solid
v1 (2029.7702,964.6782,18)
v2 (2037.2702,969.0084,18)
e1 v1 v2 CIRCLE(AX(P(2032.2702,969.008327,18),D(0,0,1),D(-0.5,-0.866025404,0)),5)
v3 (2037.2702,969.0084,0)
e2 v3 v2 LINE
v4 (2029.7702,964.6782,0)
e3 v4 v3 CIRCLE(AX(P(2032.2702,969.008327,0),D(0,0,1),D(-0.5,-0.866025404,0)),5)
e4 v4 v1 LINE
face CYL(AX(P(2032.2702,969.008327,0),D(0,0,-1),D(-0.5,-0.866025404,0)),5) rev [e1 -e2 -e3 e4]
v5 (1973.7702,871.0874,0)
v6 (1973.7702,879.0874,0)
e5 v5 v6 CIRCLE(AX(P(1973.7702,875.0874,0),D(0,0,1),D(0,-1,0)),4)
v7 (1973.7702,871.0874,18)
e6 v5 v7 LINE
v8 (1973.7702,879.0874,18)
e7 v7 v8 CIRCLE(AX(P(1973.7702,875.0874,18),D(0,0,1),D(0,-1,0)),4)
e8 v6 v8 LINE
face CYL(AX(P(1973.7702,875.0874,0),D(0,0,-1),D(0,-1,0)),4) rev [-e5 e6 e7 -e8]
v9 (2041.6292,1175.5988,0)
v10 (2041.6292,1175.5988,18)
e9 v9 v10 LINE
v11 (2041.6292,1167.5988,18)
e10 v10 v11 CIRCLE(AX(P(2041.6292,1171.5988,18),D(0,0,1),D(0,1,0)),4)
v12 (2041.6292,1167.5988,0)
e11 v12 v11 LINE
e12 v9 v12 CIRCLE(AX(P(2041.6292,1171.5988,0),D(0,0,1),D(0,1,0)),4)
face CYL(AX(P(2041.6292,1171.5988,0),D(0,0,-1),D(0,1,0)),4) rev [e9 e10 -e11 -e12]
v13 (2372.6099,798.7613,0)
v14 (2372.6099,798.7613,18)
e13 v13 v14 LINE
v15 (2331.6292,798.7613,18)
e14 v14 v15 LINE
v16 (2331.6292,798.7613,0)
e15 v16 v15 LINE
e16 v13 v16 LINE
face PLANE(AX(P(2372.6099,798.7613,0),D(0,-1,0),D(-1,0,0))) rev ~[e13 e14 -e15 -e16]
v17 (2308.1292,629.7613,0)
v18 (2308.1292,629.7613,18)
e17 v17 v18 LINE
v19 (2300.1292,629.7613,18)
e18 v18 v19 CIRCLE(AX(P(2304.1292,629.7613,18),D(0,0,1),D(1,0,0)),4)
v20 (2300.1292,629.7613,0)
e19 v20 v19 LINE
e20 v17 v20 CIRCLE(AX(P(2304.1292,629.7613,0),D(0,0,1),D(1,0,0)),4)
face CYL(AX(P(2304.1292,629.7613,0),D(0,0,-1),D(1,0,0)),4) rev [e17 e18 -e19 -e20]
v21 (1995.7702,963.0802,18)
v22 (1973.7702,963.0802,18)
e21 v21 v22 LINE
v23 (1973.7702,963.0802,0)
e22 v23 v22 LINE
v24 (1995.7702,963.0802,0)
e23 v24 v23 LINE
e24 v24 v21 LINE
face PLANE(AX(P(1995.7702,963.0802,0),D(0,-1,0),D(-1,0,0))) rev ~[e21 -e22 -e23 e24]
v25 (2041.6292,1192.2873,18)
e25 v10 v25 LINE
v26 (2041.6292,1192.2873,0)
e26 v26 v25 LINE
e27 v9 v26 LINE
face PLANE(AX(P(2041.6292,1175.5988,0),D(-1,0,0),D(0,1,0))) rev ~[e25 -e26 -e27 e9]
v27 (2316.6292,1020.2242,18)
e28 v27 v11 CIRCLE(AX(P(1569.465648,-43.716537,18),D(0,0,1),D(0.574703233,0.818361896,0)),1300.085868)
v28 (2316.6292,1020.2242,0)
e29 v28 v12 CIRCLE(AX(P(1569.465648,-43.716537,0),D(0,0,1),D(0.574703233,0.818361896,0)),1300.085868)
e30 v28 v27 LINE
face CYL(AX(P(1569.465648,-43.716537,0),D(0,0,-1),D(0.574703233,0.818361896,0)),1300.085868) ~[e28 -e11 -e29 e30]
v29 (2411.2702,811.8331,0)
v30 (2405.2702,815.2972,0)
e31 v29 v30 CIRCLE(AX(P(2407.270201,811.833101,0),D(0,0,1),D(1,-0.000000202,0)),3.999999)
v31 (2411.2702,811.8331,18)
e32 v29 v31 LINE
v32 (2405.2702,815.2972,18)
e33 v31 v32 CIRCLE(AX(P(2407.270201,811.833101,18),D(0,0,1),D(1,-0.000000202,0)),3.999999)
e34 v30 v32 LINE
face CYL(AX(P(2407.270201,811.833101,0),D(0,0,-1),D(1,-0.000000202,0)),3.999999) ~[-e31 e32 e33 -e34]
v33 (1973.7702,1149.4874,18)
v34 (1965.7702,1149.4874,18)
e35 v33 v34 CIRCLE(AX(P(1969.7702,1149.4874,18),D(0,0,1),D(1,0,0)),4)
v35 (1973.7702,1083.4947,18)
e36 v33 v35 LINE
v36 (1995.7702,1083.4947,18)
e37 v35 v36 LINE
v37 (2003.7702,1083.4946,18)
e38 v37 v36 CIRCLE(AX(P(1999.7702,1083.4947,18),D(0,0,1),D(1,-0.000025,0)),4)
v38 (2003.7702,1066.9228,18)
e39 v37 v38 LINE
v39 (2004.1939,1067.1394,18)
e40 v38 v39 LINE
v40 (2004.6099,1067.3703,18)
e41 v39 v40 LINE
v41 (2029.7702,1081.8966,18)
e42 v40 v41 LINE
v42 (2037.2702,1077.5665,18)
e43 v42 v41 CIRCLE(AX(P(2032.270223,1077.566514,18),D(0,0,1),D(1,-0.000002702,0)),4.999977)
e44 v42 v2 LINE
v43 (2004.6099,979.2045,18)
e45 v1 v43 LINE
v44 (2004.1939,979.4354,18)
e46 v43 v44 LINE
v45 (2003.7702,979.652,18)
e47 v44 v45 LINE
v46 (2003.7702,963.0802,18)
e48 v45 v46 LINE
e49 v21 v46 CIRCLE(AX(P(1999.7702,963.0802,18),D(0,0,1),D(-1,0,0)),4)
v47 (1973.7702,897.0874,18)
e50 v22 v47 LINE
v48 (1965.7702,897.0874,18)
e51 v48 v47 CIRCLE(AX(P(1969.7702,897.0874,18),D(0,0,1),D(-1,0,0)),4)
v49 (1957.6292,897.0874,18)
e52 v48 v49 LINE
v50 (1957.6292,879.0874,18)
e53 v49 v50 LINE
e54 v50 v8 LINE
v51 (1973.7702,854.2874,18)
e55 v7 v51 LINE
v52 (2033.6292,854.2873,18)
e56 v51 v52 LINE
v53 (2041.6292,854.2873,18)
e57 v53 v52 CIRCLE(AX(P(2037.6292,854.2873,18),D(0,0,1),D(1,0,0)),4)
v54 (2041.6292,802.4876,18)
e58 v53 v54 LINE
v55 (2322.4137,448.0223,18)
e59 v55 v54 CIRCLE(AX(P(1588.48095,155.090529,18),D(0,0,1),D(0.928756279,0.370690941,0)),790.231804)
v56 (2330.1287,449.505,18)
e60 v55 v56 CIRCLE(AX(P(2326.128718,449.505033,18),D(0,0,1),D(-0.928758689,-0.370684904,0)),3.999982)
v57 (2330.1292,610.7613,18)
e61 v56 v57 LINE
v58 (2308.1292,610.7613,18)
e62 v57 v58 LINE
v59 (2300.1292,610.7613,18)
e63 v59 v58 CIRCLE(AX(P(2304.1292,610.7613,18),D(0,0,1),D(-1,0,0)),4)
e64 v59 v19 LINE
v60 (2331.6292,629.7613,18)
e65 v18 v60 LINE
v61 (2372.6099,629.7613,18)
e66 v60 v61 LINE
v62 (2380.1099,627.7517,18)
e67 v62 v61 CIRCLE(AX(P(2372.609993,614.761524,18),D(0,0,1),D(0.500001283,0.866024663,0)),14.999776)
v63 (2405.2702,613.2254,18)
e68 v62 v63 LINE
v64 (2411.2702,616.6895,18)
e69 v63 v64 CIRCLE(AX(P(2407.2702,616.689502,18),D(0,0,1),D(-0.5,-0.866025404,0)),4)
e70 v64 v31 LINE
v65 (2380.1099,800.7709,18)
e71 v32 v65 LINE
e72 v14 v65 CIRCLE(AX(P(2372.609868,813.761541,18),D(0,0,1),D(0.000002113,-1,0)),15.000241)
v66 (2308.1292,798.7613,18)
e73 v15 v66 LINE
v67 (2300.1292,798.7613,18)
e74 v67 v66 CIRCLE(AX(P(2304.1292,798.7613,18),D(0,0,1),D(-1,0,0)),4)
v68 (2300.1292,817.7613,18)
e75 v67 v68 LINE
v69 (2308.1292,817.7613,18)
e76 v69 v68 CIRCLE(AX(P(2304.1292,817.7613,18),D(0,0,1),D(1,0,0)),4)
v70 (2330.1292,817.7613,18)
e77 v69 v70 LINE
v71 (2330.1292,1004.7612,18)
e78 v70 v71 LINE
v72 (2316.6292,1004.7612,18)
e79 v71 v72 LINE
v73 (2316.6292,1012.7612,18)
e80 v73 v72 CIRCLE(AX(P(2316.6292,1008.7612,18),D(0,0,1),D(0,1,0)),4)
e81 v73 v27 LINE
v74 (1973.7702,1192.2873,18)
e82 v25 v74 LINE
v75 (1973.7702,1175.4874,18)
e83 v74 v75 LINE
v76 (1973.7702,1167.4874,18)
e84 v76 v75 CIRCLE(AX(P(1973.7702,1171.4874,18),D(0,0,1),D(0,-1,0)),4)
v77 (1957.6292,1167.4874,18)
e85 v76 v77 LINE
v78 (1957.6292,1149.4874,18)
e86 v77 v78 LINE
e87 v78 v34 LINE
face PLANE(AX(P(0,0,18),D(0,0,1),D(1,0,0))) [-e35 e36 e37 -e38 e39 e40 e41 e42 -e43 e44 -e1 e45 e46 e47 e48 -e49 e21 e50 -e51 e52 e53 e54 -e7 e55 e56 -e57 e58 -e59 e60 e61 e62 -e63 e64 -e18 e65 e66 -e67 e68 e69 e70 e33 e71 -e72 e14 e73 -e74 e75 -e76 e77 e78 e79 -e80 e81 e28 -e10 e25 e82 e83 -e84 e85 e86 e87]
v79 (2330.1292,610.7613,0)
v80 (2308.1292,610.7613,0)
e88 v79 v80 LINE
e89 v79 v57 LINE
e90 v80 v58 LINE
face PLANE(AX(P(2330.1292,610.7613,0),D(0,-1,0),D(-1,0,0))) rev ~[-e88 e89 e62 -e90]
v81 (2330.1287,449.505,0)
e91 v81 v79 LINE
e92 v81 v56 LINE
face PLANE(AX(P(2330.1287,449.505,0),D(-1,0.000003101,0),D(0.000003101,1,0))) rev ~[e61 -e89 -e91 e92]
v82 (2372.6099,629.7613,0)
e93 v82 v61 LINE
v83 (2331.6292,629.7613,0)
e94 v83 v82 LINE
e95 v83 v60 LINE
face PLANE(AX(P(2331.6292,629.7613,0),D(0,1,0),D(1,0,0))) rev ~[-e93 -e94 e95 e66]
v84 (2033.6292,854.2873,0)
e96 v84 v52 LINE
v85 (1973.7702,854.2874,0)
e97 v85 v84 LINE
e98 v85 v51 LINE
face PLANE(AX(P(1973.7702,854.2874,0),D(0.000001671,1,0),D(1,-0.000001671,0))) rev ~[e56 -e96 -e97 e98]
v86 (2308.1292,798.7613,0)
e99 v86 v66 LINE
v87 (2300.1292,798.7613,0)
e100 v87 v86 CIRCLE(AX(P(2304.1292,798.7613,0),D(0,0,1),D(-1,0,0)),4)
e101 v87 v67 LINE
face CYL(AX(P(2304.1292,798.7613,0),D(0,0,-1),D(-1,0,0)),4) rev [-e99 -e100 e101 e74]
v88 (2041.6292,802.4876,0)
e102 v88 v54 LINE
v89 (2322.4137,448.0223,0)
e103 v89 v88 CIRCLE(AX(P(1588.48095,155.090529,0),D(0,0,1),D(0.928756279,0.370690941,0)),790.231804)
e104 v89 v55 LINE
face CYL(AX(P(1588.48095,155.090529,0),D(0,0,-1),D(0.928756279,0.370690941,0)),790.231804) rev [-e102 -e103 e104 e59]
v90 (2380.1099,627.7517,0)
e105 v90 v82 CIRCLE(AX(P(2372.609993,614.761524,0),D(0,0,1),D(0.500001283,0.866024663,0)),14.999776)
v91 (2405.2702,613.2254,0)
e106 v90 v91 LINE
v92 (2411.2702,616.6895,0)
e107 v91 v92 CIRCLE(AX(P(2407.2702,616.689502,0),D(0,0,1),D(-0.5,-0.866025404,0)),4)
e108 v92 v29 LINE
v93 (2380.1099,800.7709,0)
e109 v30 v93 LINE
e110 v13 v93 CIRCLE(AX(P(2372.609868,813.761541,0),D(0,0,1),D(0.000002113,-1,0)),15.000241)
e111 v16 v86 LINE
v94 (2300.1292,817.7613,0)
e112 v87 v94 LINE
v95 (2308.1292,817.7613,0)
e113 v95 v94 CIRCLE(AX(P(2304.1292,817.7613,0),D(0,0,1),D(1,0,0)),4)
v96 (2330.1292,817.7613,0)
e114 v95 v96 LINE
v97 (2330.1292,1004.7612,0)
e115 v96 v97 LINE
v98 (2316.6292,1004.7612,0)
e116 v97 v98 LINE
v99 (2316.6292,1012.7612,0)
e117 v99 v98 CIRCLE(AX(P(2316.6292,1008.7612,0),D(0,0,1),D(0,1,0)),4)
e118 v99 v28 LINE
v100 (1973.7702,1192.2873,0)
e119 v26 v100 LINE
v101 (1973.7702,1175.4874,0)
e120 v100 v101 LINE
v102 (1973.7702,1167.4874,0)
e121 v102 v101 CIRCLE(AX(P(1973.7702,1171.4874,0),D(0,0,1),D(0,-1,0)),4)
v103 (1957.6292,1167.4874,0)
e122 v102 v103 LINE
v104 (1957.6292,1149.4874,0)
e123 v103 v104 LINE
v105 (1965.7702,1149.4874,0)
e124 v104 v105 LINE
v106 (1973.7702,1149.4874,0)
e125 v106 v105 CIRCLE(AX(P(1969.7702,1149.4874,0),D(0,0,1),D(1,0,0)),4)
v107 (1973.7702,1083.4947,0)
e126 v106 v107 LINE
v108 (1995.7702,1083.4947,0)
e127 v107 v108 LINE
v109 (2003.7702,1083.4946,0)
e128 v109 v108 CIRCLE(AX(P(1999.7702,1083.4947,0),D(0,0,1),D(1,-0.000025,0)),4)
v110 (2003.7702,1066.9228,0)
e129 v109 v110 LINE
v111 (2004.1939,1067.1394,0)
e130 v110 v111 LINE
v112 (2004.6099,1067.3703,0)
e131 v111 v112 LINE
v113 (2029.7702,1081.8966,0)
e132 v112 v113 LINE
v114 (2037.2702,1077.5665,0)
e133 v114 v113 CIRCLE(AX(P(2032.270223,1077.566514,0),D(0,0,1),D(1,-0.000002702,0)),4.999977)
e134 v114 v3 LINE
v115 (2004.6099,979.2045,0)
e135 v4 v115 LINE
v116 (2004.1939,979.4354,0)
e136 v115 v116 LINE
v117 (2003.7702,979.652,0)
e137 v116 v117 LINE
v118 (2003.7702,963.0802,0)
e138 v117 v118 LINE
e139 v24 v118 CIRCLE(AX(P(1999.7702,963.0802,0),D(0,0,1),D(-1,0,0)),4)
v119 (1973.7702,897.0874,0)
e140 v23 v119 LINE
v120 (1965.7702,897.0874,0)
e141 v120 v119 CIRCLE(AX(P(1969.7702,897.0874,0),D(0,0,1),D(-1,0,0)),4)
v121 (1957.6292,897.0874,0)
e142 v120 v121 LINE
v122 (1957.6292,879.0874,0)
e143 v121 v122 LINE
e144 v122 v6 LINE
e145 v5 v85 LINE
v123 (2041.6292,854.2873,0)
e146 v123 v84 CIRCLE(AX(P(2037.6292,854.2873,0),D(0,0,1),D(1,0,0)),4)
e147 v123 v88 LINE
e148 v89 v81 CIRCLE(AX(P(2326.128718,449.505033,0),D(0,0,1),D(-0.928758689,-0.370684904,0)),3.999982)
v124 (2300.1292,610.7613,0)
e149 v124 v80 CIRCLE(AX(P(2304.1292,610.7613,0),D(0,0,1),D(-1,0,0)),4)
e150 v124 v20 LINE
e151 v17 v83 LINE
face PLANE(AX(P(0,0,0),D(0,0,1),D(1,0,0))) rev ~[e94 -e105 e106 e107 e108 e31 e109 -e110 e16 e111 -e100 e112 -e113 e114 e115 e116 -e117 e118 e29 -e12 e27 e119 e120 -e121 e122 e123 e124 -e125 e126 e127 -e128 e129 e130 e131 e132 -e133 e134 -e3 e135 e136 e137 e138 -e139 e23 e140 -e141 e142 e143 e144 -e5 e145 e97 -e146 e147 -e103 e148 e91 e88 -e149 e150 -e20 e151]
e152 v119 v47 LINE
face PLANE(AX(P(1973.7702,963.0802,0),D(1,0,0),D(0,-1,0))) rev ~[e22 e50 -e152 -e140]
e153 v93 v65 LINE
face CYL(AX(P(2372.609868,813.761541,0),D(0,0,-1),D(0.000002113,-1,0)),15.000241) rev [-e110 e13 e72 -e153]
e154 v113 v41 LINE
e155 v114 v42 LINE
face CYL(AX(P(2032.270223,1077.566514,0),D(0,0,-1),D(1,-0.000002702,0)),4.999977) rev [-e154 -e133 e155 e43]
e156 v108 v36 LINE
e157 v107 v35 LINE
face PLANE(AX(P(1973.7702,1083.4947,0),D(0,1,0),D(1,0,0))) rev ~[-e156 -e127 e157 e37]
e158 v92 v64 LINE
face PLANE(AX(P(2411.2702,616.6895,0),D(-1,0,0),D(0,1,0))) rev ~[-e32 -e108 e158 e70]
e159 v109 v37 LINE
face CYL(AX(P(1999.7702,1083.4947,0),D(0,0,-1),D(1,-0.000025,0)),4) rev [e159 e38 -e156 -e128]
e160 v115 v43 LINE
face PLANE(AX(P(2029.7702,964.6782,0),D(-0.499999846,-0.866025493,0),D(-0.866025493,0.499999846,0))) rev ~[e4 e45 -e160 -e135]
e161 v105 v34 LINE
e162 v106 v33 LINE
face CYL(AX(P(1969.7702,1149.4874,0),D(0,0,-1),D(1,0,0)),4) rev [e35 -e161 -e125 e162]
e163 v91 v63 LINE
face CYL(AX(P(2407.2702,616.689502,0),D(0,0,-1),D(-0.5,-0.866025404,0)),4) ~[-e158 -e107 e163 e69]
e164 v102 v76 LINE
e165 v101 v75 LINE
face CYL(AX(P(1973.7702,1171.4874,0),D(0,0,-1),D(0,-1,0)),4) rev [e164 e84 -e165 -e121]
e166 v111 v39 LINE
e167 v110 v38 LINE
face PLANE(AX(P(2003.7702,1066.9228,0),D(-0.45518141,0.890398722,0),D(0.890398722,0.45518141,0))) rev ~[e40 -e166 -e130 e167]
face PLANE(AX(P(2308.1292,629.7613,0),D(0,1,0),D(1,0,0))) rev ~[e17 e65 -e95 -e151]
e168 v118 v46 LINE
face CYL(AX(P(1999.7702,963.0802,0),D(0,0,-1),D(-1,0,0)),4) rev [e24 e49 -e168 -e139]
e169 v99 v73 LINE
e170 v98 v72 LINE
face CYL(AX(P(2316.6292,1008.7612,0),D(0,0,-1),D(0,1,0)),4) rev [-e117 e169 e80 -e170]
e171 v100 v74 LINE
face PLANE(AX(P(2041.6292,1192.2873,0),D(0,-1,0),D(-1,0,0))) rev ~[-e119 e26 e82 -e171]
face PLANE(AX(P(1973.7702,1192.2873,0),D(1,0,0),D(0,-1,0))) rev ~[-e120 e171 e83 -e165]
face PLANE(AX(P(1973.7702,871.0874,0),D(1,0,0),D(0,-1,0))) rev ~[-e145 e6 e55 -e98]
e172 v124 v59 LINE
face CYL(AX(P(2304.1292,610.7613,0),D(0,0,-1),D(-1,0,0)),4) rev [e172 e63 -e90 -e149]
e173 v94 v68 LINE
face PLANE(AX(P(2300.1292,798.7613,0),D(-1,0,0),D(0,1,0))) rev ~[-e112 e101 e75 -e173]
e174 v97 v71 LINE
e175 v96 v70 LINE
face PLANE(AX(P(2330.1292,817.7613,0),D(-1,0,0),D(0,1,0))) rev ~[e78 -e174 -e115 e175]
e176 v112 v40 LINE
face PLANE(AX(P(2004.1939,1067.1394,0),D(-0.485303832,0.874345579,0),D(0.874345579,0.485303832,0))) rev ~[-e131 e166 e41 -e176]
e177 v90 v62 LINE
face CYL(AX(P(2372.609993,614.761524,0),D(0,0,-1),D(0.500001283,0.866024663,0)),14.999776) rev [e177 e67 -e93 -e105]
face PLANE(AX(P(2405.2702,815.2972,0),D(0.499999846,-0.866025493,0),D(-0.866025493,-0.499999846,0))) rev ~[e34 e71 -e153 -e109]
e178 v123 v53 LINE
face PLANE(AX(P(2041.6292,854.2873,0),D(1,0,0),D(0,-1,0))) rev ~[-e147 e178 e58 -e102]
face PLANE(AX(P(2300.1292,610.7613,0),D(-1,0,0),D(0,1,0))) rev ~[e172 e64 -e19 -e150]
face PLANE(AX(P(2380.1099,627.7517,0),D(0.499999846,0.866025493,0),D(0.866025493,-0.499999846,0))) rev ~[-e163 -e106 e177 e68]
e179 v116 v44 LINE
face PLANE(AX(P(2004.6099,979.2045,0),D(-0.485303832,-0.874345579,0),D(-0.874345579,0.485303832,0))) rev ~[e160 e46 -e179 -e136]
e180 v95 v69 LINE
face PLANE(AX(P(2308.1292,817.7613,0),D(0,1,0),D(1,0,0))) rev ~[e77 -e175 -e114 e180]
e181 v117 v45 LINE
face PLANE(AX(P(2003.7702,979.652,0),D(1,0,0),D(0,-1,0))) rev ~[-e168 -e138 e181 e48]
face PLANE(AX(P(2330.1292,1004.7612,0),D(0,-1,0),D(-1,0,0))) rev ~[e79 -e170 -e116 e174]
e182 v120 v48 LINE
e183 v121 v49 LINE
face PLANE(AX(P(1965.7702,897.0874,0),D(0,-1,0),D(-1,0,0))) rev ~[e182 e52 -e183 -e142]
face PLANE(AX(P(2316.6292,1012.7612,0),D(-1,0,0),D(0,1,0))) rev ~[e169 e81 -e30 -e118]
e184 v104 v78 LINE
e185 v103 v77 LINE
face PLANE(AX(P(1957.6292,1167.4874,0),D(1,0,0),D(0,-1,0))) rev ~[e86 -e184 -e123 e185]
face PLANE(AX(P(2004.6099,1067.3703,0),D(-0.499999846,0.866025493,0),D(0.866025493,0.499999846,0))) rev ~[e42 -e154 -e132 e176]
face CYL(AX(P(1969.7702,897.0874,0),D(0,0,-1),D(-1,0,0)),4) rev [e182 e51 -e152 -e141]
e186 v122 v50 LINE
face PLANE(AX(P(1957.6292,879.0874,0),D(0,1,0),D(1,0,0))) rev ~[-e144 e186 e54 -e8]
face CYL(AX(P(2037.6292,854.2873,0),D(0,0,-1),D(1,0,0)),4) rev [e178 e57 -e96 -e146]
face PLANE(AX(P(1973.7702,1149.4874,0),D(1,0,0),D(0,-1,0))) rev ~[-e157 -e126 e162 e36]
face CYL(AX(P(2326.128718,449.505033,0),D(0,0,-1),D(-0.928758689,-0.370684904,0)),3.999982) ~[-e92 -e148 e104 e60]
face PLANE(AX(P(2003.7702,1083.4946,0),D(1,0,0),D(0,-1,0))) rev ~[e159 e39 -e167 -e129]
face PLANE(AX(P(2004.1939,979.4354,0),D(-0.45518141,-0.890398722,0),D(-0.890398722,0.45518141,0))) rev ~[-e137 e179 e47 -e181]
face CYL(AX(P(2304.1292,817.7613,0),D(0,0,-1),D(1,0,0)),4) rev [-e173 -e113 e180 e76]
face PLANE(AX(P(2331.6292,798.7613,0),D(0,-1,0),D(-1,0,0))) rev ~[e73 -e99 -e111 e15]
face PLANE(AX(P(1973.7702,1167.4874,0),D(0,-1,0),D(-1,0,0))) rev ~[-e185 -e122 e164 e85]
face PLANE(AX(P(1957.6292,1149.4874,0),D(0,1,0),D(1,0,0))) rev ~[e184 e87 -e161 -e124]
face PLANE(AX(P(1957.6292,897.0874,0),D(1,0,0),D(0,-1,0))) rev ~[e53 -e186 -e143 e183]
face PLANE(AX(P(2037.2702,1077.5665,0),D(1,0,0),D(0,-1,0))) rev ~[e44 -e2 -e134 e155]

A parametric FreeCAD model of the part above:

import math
import FreeCAD as App
import Part
import Sketcher

V = App.Vector
Q = App.Units.Quantity

doc = App.newDocument("Part")
body = doc.addObject("PartDesign::Body", "Body")

sketch1 = body.newObject("Sketcher::SketchObject", "Sketch")
sketch1.AttachmentSupport = (doc.getObject("XY_Plane"), [""])
sketch1.MapMode = "FlatFace"
sketch1.addGeometry(Part.ArcOfCircle(Part.Circle(V(1973.7702, 875.0874, 0), V(0, 0, 1), 4), math.radians(-90), math.radians(90)), False)
sketch1.addGeometry(Part.LineSegment(V(1973.7702, 871.0874, 0), V(1973.7702, 854.2874, 0)), False)
sketch1.addGeometry(Part.LineSegment(V(1973.7702, 854.2874, 0), V(2033.6292, 854.2873, 0)), False)
sketch1.addGeometry(Part.ArcOfCircle(Part.Circle(V(2037.6292, 854.2873, 0), V(0, 0, 1), 4), math.radians(0), math.radians(180)), False)
sketch1.addGeometry(Part.LineSegment(V(2041.6292, 854.2873, 0), V(2041.6292, 802.4876, 0)), False)
sketch1.addGeometry(Part.ArcOfCircle(Part.Circle(V(1588.4809, 155.0905, 0), V(0, 0, 1), 790.231861), math.radians(21.758236), math.radians(55.009742)), False)
sketch1.addGeometry(Part.ArcOfCircle(Part.Circle(V(2326.1287, 449.505, 0), V(0, 0, 1), 3.999953), math.radians(-158.242479), math.radians(0)), False)
sketch1.addGeometry(Part.LineSegment(V(2330.1287, 449.505, 0), V(2330.1292, 610.7613, 0)), False)
sketch1.addGeometry(Part.LineSegment(V(2330.1292, 610.7613, 0), V(2308.1292, 610.7613, 0)), False)
sketch1.addGeometry(Part.ArcOfCircle(Part.Circle(V(2304.1292, 610.7613, 0), V(0, 0, 1), 4), math.radians(180), math.radians(360)), False)
sketch1.addGeometry(Part.LineSegment(V(2300.1292, 610.7613, 0), V(2300.1292, 629.7613, 0)), False)
sketch1.addGeometry(Part.ArcOfCircle(Part.Circle(V(2304.1292, 629.7613, 0), V(0, 0, 1), 4), math.radians(0), math.radians(180)), False)
sketch1.addGeometry(Part.LineSegment(V(2308.1292, 629.7613, 0), V(2372.6099, 629.7613, 0)), False)
sketch1.addGeometry(Part.ArcOfCircle(Part.Circle(V(2372.6099, 614.7613, 0), V(0, 0, 1), 15.000016), math.radians(60.000036), math.radians(90)), False)
sketch1.addGeometry(Part.LineSegment(V(2380.1099, 627.7517, 0), V(2405.2702, 613.2254, 0)), False)
sketch1.addGeometry(Part.ArcOfCircle(Part.Circle(V(2407.2702, 616.6895, 0), V(0, 0, 1), 3.999999), math.radians(-120.000012), math.radians(0)), False)
sketch1.addGeometry(Part.LineSegment(V(2411.2702, 616.6895, 0), V(2411.2702, 811.8331, 0)), False)
sketch1.addGeometry(Part.ArcOfCircle(Part.Circle(V(2407.2702, 811.8331, 0), V(0, 0, 1), 4), math.radians(0), math.radians(120.000012)), False)
sketch1.addGeometry(Part.LineSegment(V(2405.2702, 815.2972, 0), V(2380.1099, 800.7709, 0)), False)
sketch1.addGeometry(Part.ArcOfCircle(Part.Circle(V(2372.6099, 813.7613, 0), V(0, 0, 1), 15), math.radians(-90), math.radians(-60.000036)), False)
sketch1.addGeometry(Part.LineSegment(V(2372.6099, 798.7613, 0), V(2308.1292, 798.7613, 0)), False)
sketch1.addGeometry(Part.ArcOfCircle(Part.Circle(V(2304.1292, 798.7613, 0), V(0, 0, 1), 4), math.radians(180), math.radians(360)), False)
sketch1.addGeometry(Part.LineSegment(V(2300.1292, 798.7613, 0), V(2300.1292, 817.7613, 0)), False)
sketch1.addGeometry(Part.ArcOfCircle(Part.Circle(V(2304.1292, 817.7613, 0), V(0, 0, 1), 4), math.radians(0), math.radians(180)), False)
sketch1.addGeometry(Part.LineSegment(V(2308.1292, 817.7613, 0), V(2330.1292, 817.7613, 0)), False)
sketch1.addGeometry(Part.LineSegment(V(2330.1292, 817.7613, 0), V(2330.1292, 1004.7612, 0)), False)
sketch1.addGeometry(Part.LineSegment(V(2330.1292, 1004.7612, 0), V(2316.6292, 1004.7612, 0)), False)
sketch1.addGeometry(Part.ArcOfCircle(Part.Circle(V(2316.6292, 1008.7612, 0), V(0, 0, 1), 4), math.radians(90), math.radians(270)), False)
sketch1.addGeometry(Part.LineSegment(V(2316.6292, 1012.7612, 0), V(2316.6292, 1020.2242, 0)), False)
sketch1.addGeometry(Part.ArcOfCircle(Part.Circle(V(1569.465648, -43.716537, 0), V(0, 0, 1), 1300.085868), math.radians(54.921148), math.radians(68.704458)), False)
sketch1.addGeometry(Part.ArcOfCircle(Part.Circle(V(2041.6292, 1171.5988, 0), V(0, 0, 1), 4), math.radians(90), math.radians(270)), False)
sketch1.addGeometry(Part.LineSegment(V(2041.6292, 1175.5988, 0), V(2041.6292, 1192.2873, 0)), False)
sketch1.addGeometry(Part.LineSegment(V(2041.6292, 1192.2873, 0), V(1973.7702, 1192.2873, 0)), False)
sketch1.addGeometry(Part.LineSegment(V(1973.7702, 1192.2873, 0), V(1973.7702, 1175.4874, 0)), False)
sketch1.addGeometry(Part.ArcOfCircle(Part.Circle(V(1973.7702, 1171.4874, 0), V(0, 0, 1), 4), math.radians(-90), math.radians(90)), False)
sketch1.addGeometry(Part.LineSegment(V(1973.7702, 1167.4874, 0), V(1957.6292, 1167.4874, 0)), False)
sketch1.addGeometry(Part.LineSegment(V(1957.6292, 1167.4874, 0), V(1957.6292, 1149.4874, 0)), False)
sketch1.addGeometry(Part.LineSegment(V(1957.6292, 1149.4874, 0), V(1965.7702, 1149.4874, 0)), False)
sketch1.addGeometry(Part.ArcOfCircle(Part.Circle(V(1969.7702, 1149.4874, 0), V(0, 0, 1), 4), math.radians(0), math.radians(180)), False)
sketch1.addGeometry(Part.LineSegment(V(1973.7702, 1149.4874, 0), V(1973.7702, 1083.4947, 0)), False)
sketch1.addGeometry(Part.LineSegment(V(1973.7702, 1083.4947, 0), V(1995.7702, 1083.4947, 0)), False)
sketch1.addGeometry(Part.ArcOfCircle(Part.Circle(V(1999.7702, 1083.4947, 0), V(0, 0, 1), 4), math.radians(-0.001432), math.radians(180)), False)
sketch1.addGeometry(Part.LineSegment(V(2003.7702, 1083.4946, 0), V(2003.7702, 1066.9228, 0)), False)
sketch1.addGeometry(Part.LineSegment(V(2003.7702, 1066.9228, 0), V(2004.1939, 1067.1394, 0)), False)
sketch1.addGeometry(Part.LineSegment(V(2004.1939, 1067.1394, 0), V(2004.6099, 1067.3703, 0)), False)
sketch1.addGeometry(Part.LineSegment(V(2004.6099, 1067.3703, 0), V(2029.7702, 1081.8966, 0)), False)
sketch1.addGeometry(Part.ArcOfCircle(Part.Circle(V(2032.2702, 1077.5665, 0), V(0, 0, 1), 5), math.radians(0), math.radians(120.000155)), False)
sketch1.addGeometry(Part.LineSegment(V(2037.2702, 1077.5665, 0), V(2037.2702, 969.0084, 0)), False)
sketch1.addGeometry(Part.ArcOfCircle(Part.Circle(V(2032.2702, 969.0084, 0), V(0, 0, 1), 5.000063), math.radians(-119.999582), math.radians(0)), False)
sketch1.addGeometry(Part.LineSegment(V(2029.7702, 964.6782, 0), V(2004.6099, 979.2045, 0)), False)
sketch1.addGeometry(Part.LineSegment(V(2004.6099, 979.2045, 0), V(2004.1939, 979.4354, 0)), False)
sketch1.addGeometry(Part.LineSegment(V(2004.1939, 979.4354, 0), V(2003.7702, 979.652, 0)), False)
sketch1.addGeometry(Part.LineSegment(V(2003.7702, 979.652, 0), V(2003.7702, 963.0802, 0)), False)
sketch1.addGeometry(Part.ArcOfCircle(Part.Circle(V(1999.7702, 963.0802, 0), V(0, 0, 1), 4), math.radians(180), math.radians(360)), False)
sketch1.addGeometry(Part.LineSegment(V(1995.7702, 963.0802, 0), V(1973.7702, 963.0802, 0)), False)
sketch1.addGeometry(Part.LineSegment(V(1973.7702, 963.0802, 0), V(1973.7702, 897.0874, 0)), False)
sketch1.addGeometry(Part.ArcOfCircle(Part.Circle(V(1969.7702, 897.0874, 0), V(0, 0, 1), 4), math.radians(180), math.radians(360)), False)
sketch1.addGeometry(Part.LineSegment(V(1965.7702, 897.0874, 0), V(1957.6292, 897.0874, 0)), False)
sketch1.addGeometry(Part.LineSegment(V(1957.6292, 897.0874, 0), V(1957.6292, 879.0874, 0)), False)
sketch1.addGeometry(Part.LineSegment(V(1957.6292, 879.0874, 0), V(1973.7702, 879.0874, 0)), False)
sketch1.addConstraint(Sketcher.Constraint("Coincident", 0, 1, 1, 1))
sketch1.addConstraint(Sketcher.Constraint("Coincident", 1, 2, 2, 1))
sketch1.addConstraint(Sketcher.Constraint("Coincident", 2, 2, 3, 2))
sketch1.addConstraint(Sketcher.Constraint("Coincident", 3, 1, 4, 1))
sketch1.addConstraint(Sketcher.Constraint("Coincident", 4, 2, 5, 2))
sketch1.addConstraint(Sketcher.Constraint("Coincident", 5, 1, 6, 1))
sketch1.addConstraint(Sketcher.Constraint("Coincident", 6, 2, 7, 1))
sketch1.addConstraint(Sketcher.Constraint("Coincident", 7, 2, 8, 1))
sketch1.addConstraint(Sketcher.Constraint("Coincident", 8, 2, 9, 2))
sketch1.addConstraint(Sketcher.Constraint("Coincident", 9, 1, 10, 1))
sketch1.addConstraint(Sketcher.Constraint("Coincident", 10, 2, 11, 2))
sketch1.addConstraint(Sketcher.Constraint("Coincident", 11, 1, 12, 1))
sketch1.addConstraint(Sketcher.Constraint("Coincident", 12, 2, 13, 2))
sketch1.addConstraint(Sketcher.Constraint("Coincident", 13, 1, 14, 1))
sketch1.addConstraint(Sketcher.Constraint("Coincident", 14, 2, 15, 1))
sketch1.addConstraint(Sketcher.Constraint("Coincident", 15, 2, 16, 1))
sketch1.addConstraint(Sketcher.Constraint("Coincident", 16, 2, 17, 1))
sketch1.addConstraint(Sketcher.Constraint("Coincident", 17, 2, 18, 1))
sketch1.addConstraint(Sketcher.Constraint("Coincident", 18, 2, 19, 2))
sketch1.addConstraint(Sketcher.Constraint("Coincident", 19, 1, 20, 1))
sketch1.addConstraint(Sketcher.Constraint("Coincident", 20, 2, 21, 2))
sketch1.addConstraint(Sketcher.Constraint("Coincident", 21, 1, 22, 1))
sketch1.addConstraint(Sketcher.Constraint("Coincident", 22, 2, 23, 2))
sketch1.addConstraint(Sketcher.Constraint("Coincident", 23, 1, 24, 1))
sketch1.addConstraint(Sketcher.Constraint("Coincident", 24, 2, 25, 1))
sketch1.addConstraint(Sketcher.Constraint("Coincident", 25, 2, 26, 1))
sketch1.addConstraint(Sketcher.Constraint("Coincident", 26, 2, 27, 2))
sketch1.addConstraint(Sketcher.Constraint("Coincident", 27, 1, 28, 1))
sketch1.addConstraint(Sketcher.Constraint("Coincident", 28, 2, 29, 1))
sketch1.addConstraint(Sketcher.Constraint("Coincident", 29, 2, 30, 2))
sketch1.addConstraint(Sketcher.Constraint("Coincident", 30, 1, 31, 1))
sketch1.addConstraint(Sketcher.Constraint("Coincident", 31, 2, 32, 1))
sketch1.addConstraint(Sketcher.Constraint("Coincident", 32, 2, 33, 1))
sketch1.addConstraint(Sketcher.Constraint("Coincident", 33, 2, 34, 2))
sketch1.addConstraint(Sketcher.Constraint("Coincident", 34, 1, 35, 1))
sketch1.addConstraint(Sketcher.Constraint("Coincident", 35, 2, 36, 1))
sketch1.addConstraint(Sketcher.Constraint("Coincident", 36, 2, 37, 1))
sketch1.addConstraint(Sketcher.Constraint("Coincident", 37, 2, 38, 2))
sketch1.addConstraint(Sketcher.Constraint("Coincident", 38, 1, 39, 1))
sketch1.addConstraint(Sketcher.Constraint("Coincident", 39, 2, 40, 1))
sketch1.addConstraint(Sketcher.Constraint("Coincident", 40, 2, 41, 2))
sketch1.addConstraint(Sketcher.Constraint("Coincident", 41, 1, 42, 1))
sketch1.addConstraint(Sketcher.Constraint("Coincident", 42, 2, 43, 1))
sketch1.addConstraint(Sketcher.Constraint("Coincident", 43, 2, 44, 1))
sketch1.addConstraint(Sketcher.Constraint("Coincident", 44, 2, 45, 1))
sketch1.addConstraint(Sketcher.Constraint("Coincident", 45, 2, 46, 2))
sketch1.addConstraint(Sketcher.Constraint("Coincident", 46, 1, 47, 1))
sketch1.addConstraint(Sketcher.Constraint("Coincident", 47, 2, 48, 2))
sketch1.addConstraint(Sketcher.Constraint("Coincident", 48, 1, 49, 1))
sketch1.addConstraint(Sketcher.Constraint("Coincident", 49, 2, 50, 1))
sketch1.addConstraint(Sketcher.Constraint("Coincident", 50, 2, 51, 1))
sketch1.addConstraint(Sketcher.Constraint("Coincident", 51, 2, 52, 1))
sketch1.addConstraint(Sketcher.Constraint("Coincident", 52, 2, 53, 2))
sketch1.addConstraint(Sketcher.Constraint("Coincident", 53, 1, 54, 1))
sketch1.addConstraint(Sketcher.Constraint("Coincident", 54, 2, 55, 1))
sketch1.addConstraint(Sketcher.Constraint("Coincident", 55, 2, 56, 2))
sketch1.addConstraint(Sketcher.Constraint("Coincident", 56, 1, 57, 1))
sketch1.addConstraint(Sketcher.Constraint("Coincident", 57, 2, 58, 1))
sketch1.addConstraint(Sketcher.Constraint("Coincident", 58, 2, 59, 1))
sketch1.addConstraint(Sketcher.Constraint("Coincident", 59, 2, 0, 2))
sketch1.addConstraint(Sketcher.Constraint("Vertical", 1))
sketch1.addConstraint(Sketcher.Constraint("Horizontal", 2))
sketch1.addConstraint(Sketcher.Constraint("Vertical", 4))
sketch1.addConstraint(Sketcher.Constraint("Horizontal", 8))
sketch1.addConstraint(Sketcher.Constraint("Vertical", 10))
sketch1.addConstraint(Sketcher.Constraint("Horizontal", 12))
sketch1.addConstraint(Sketcher.Constraint("Vertical", 16))
sketch1.addConstraint(Sketcher.Constraint("Horizontal", 20))
sketch1.addConstraint(Sketcher.Constraint("Vertical", 22))
sketch1.addConstraint(Sketcher.Constraint("Horizontal", 24))
sketch1.addConstraint(Sketcher.Constraint("Vertical", 25))
sketch1.addConstraint(Sketcher.Constraint("Horizontal", 26))
sketch1.addConstraint(Sketcher.Constraint("Vertical", 28))
sketch1.addConstraint(Sketcher.Constraint("Vertical", 31))
sketch1.addConstraint(Sketcher.Constraint("Horizontal", 32))
sketch1.addConstraint(Sketcher.Constraint("Vertical", 33))
sketch1.addConstraint(Sketcher.Constraint("Horizontal", 35))
sketch1.addConstraint(Sketcher.Constraint("Vertical", 36))
sketch1.addConstraint(Sketcher.Constraint("Horizontal", 37))
sketch1.addConstraint(Sketcher.Constraint("Vertical", 39))
sketch1.addConstraint(Sketcher.Constraint("Horizontal", 40))
sketch1.addConstraint(Sketcher.Constraint("Vertical", 42))
sketch1.addConstraint(Sketcher.Constraint("Vertical", 47))
sketch1.addConstraint(Sketcher.Constraint("Vertical", 52))
sketch1.addConstraint(Sketcher.Constraint("Horizontal", 54))
sketch1.addConstraint(Sketcher.Constraint("Vertical", 55))
sketch1.addConstraint(Sketcher.Constraint("Horizontal", 57))
sketch1.addConstraint(Sketcher.Constraint("Vertical", 58))
sketch1.addConstraint(Sketcher.Constraint("Horizontal", 59))
sketch1.addConstraint(Sketcher.Constraint("Radius", 0, Q("4 mm")))
sketch1.addConstraint(Sketcher.Constraint("Radius", 3, Q("4 mm")))
sketch1.addConstraint(Sketcher.Constraint("Radius", 6, Q("4 mm")))
sketch1.addConstraint(Sketcher.Constraint("Radius", 9, Q("4 mm")))
sketch1.addConstraint(Sketcher.Constraint("Radius", 11, Q("4 mm")))
sketch1.addConstraint(Sketcher.Constraint("Radius", 13, Q("15 mm")))
sketch1.addConstraint(Sketcher.Constraint("Radius", 15, Q("4 mm")))
sketch1.addConstraint(Sketcher.Constraint("Radius", 17, Q("4 mm")))
sketch1.addConstraint(Sketcher.Constraint("Radius", 19, Q("15 mm")))
sketch1.addConstraint(Sketcher.Constraint("Radius", 21, Q("4 mm")))
sketch1.addConstraint(Sketcher.Constraint("Radius", 23, Q("4 mm")))
sketch1.addConstraint(Sketcher.Constraint("Radius", 27, Q("4 mm")))
sketch1.addConstraint(Sketcher.Constraint("Radius", 30, Q("4 mm")))
sketch1.addConstraint(Sketcher.Constraint("Radius", 34, Q("4 mm")))
sketch1.addConstraint(Sketcher.Constraint("Radius", 38, Q("4 mm")))
sketch1.addConstraint(Sketcher.Constraint("Radius", 41, Q("4 mm")))
sketch1.addConstraint(Sketcher.Constraint("Radius", 46, Q("5 mm")))
sketch1.addConstraint(Sketcher.Constraint("Radius", 48, Q("5 mm")))
sketch1.addConstraint(Sketcher.Constraint("Radius", 53, Q("4 mm")))
sketch1.addConstraint(Sketcher.Constraint("Radius", 56, Q("4 mm")))
sketch1.addConstraint(Sketcher.Constraint("DistanceX", 8, 2, 8, 1, Q("22 mm")))
sketch1.addConstraint(Sketcher.Constraint("DistanceX", 24, 1, 24, 2, Q("22 mm")))
sketch1.addConstraint(Sketcher.Constraint("DistanceX", 40, 1, 40, 2, Q("22 mm")))
sketch1.addConstraint(Sketcher.Constraint("DistanceX", 54, 2, 54, 1, Q("22 mm")))
sketch1.addConstraint(Sketcher.Constraint("DistanceY", 10, 1, 10, 2, Q("19 mm")))
sketch1.addConstraint(Sketcher.Constraint("DistanceY", 22, 1, 22, 2, Q("19 mm")))
sketch1.addConstraint(Sketcher.Constraint("DistanceY", 25, 1, 25, 2, Q("187 mm")))
sketch1.addConstraint(Sketcher.Constraint("DistanceY", 36, 2, 36, 1, Q("18 mm")))
sketch1.addConstraint(Sketcher.Constraint("DistanceY", 58, 2, 58, 1, Q("18 mm")))
sketch1.addConstraint(Sketcher.Constraint("DistanceX", 26, 2, 26, 1, Q("13.5 mm")))
sketch1.addConstraint(Sketcher.Constraint("DistanceY", 1, 2, 1, 1, Q("16.8 mm")))
sketch1.addConstraint(Sketcher.Constraint("DistanceY", 33, 2, 33, 1, Q("16.8 mm")))
sketch1.addConstraint(Sketcher.Constraint("Radius", 5, Q("790.2319 mm")))
sketch1.addConstraint(Sketcher.Constraint("Radius", 29, Q("1300.0859 mm")))
sketch1.addConstraint(Sketcher.Constraint("DistanceX", 2, 1, 2, 2, Q("59.859 mm")))
sketch1.addConstraint(Sketcher.Constraint("DistanceX", 32, 2, 32, 1, Q("67.859 mm")))
sketch1.addConstraint(Sketcher.Constraint("DistanceX", 35, 2, 35, 1, Q("16.141 mm")))
sketch1.addConstraint(Sketcher.Constraint("DistanceX", 37, 1, 37, 2, Q("8.141 mm")))
sketch1.addConstraint(Sketcher.Constraint("DistanceX", 57, 2, 57, 1, Q("8.141 mm")))
sketch1.addConstraint(Sketcher.Constraint("DistanceX", 59, 1, 59, 2, Q("16.141 mm")))
sketch1.addConstraint(Sketcher.Constraint("DistanceY", 28, 1, 28, 2, Q("7.463 mm")))
sketch1.addConstraint(Sketcher.Constraint("DistanceY", 47, 2, 47, 1, Q("108.558 mm")))
sketch1.addConstraint(Sketcher.Constraint("DistanceX", -1, 1, 13, 3, Q("2372.61 mm")))
sketch1.addConstraint(Sketcher.Constraint("DistanceX", -1, 1, 19, 3, Q("2372.61 mm")))
sketch1.addConstraint(Sketcher.Constraint("DistanceX", -1, 1, 12, 2, Q("2372.61 mm")))
sketch1.addConstraint(Sketcher.Constraint("DistanceX", -1, 1, 13, 1, Q("2380.11 mm")))
sketch1.addConstraint(Sketcher.Constraint("DistanceX", -1, 1, 18, 2, Q("2380.11 mm")))
sketch1.addConstraint(Sketcher.Constraint("DistanceX", -1, 1, 19, 1, Q("2372.61 mm")))
sketch1.addConstraint(Sketcher.Constraint("DistanceX", -1, 1, 44, 2, Q("2004.61 mm")))
sketch1.addConstraint(Sketcher.Constraint("DistanceX", -1, 1, 49, 2, Q("2004.61 mm")))
sketch1.addConstraint(Sketcher.Constraint("DistanceX", 12, 1, 12, 2, Q("64.4807 mm")))
sketch1.addConstraint(Sketcher.Constraint("DistanceX", 20, 2, 20, 1, Q("64.4807 mm")))
sketch1.addConstraint(Sketcher.Constraint("DistanceY", 4, 2, 4, 1, Q("51.7997 mm")))
sketch1.addConstraint(Sketcher.Constraint("DistanceY", 16, 1, 16, 2, Q("195.1436 mm")))
sketch1.addConstraint(Sketcher.Constraint("DistanceY", 31, 1, 31, 2, Q("16.6885 mm")))
sketch1.addConstraint(Sketcher.Constraint("DistanceY", 39, 2, 39, 1, Q("65.9927 mm")))
sketch1.addConstraint(Sketcher.Constraint("DistanceY", 42, 2, 42, 1, Q("16.5718 mm")))
sketch1.addConstraint(Sketcher.Constraint("DistanceY", 52, 2, 52, 1, Q("16.5718 mm")))
sketch1.addConstraint(Sketcher.Constraint("DistanceY", 55, 2, 55, 1, Q("65.9928 mm")))
sketch1.addConstraint(Sketcher.Constraint("DistanceX", -1, 1, 5, 3, Q("1588.481 mm")))
sketch1.addConstraint(Sketcher.Constraint("DistanceY", -1, 1, 6, 3, Q("449.505 mm")))
sketch1.addConstraint(Sketcher.Constraint("DistanceY", -1, 1, 17, 3, Q("811.833 mm")))
sketch1.addConstraint(Sketcher.Constraint("DistanceY", -1, 1, 6, 2, Q("449.505 mm")))
sketch1.addConstraint(Sketcher.Constraint("DistanceY", -1, 1, 16, 2, Q("811.833 mm")))
sketch1.addConstraint(Sketcher.Constraint("DistanceY", -1, 1, 18, 2, Q("800.771 mm")))
sketch1.addConstraint(Sketcher.Constraint("DistanceX", -1, 1, 43, 2, Q("2004.194 mm")))
sketch1.addConstraint(Sketcher.Constraint("DistanceX", -1, 1, 50, 2, Q("2004.194 mm")))
sketch1.addConstraint(Sketcher.Constraint("DistanceY", -1, 1, 51, 2, Q("979.652 mm")))
sketch1.addConstraint(Sketcher.Constraint("Distance", 7, Q("161.2563 mm")))
sketch1.addConstraint(Sketcher.Constraint("Distance", 14, Q("29.0526 mm")))
sketch1.addConstraint(Sketcher.Constraint("Distance", 18, Q("29.0526 mm")))
sketch1.addConstraint(Sketcher.Constraint("Distance", 43, Q("0.4759 mm")))
sketch1.addConstraint(Sketcher.Constraint("Distance", 44, Q("0.4758 mm")))
sketch1.addConstraint(Sketcher.Constraint("Distance", 45, Q("29.0526 mm")))
sketch1.addConstraint(Sketcher.Constraint("Distance", 49, Q("29.0526 mm")))
sketch1.addConstraint(Sketcher.Constraint("Distance", 50, Q("0.4758 mm")))
sketch1.addConstraint(Sketcher.Constraint("Distance", 51, Q("0.4759 mm")))
sketch1.addConstraint(Sketcher.Constraint("DistanceX", -1, 1, 0, 3, Q("1973.7702 mm")))
sketch1.addConstraint(Sketcher.Constraint("DistanceY", -1, 1, 0, 3, Q("875.0874 mm")))
sketch1.addConstraint(Sketcher.Constraint("DistanceX", -1, 1, 3, 3, Q("2037.6292 mm")))
sketch1.addConstraint(Sketcher.Constraint("DistanceY", -1, 1, 3, 3, Q("854.2873 mm")))
sketch1.addConstraint(Sketcher.Constraint("DistanceY", -1, 1, 5, 3, Q("155.0905 mm")))
sketch1.addConstraint(Sketcher.Constraint("DistanceY", -1, 1, 9, 3, Q("610.7613 mm")))
sketch1.addConstraint(Sketcher.Constraint("DistanceY", -1, 1, 11, 3, Q("629.7613 mm")))
sketch1.addConstraint(Sketcher.Constraint("DistanceY", -1, 1, 13, 3, Q("614.7613 mm")))
sketch1.addConstraint(Sketcher.Constraint("DistanceX", -1, 1, 15, 3, Q("2407.2702 mm")))
sketch1.addConstraint(Sketcher.Constraint("DistanceY", -1, 1, 15, 3, Q("616.6895 mm")))
sketch1.addConstraint(Sketcher.Constraint("DistanceY", -1, 1, 21, 3, Q("798.7613 mm")))
sketch1.addConstraint(Sketcher.Constraint("DistanceY", -1, 1, 23, 3, Q("817.7613 mm")))
sketch1.addConstraint(Sketcher.Constraint("DistanceX", -1, 1, 27, 3, Q("2316.6292 mm")))
sketch1.addConstraint(Sketcher.Constraint("DistanceY", -1, 1, 27, 3, Q("1008.7612 mm")))
sketch1.addConstraint(Sketcher.Constraint("DistanceX", -1, 1, 29, 3, Q("1569.4656 mm")))
sketch1.addConstraint(Sketcher.Constraint("DistanceY", 29, 3, -1, 1, Q("43.7165 mm")))
sketch1.addConstraint(Sketcher.Constraint("DistanceX", -1, 1, 30, 3, Q("2041.6292 mm")))
sketch1.addConstraint(Sketcher.Constraint("DistanceY", -1, 1, 30, 3, Q("1171.5988 mm")))
sketch1.addConstraint(Sketcher.Constraint("DistanceX", -1, 1, 34, 3, Q("1973.7702 mm")))
sketch1.addConstraint(Sketcher.Constraint("DistanceX", -1, 1, 38, 3, Q("1969.7702 mm")))
sketch1.addConstraint(Sketcher.Constraint("DistanceY", -1, 1, 38, 3, Q("1149.4874 mm")))
sketch1.addConstraint(Sketcher.Constraint("DistanceY", -1, 1, 41, 3, Q("1083.4947 mm")))
sketch1.addConstraint(Sketcher.Constraint("DistanceX", -1, 1, 46, 3, Q("2032.2702 mm")))
sketch1.addConstraint(Sketcher.Constraint("DistanceY", -1, 1, 46, 3, Q("1077.5665 mm")))
sketch1.addConstraint(Sketcher.Constraint("DistanceY", -1, 1, 48, 3, Q("969.0084 mm")))
sketch1.addConstraint(Sketcher.Constraint("DistanceX", -1, 1, 53, 3, Q("1999.7702 mm")))
sketch1.addConstraint(Sketcher.Constraint("DistanceY", -1, 1, 53, 3, Q("963.0802 mm")))
sketch1.addConstraint(Sketcher.Constraint("DistanceY", -1, 1, 56, 3, Q("897.0874 mm")))
sketch1.addConstraint(Sketcher.Constraint("DistanceX", -1, 1, 5, 1, Q("2322.4137 mm")))
sketch1.addConstraint(Sketcher.Constraint("DistanceY", -1, 1, 9, 1, Q("610.7613 mm")))
sketch1.addConstraint(Sketcher.Constraint("DistanceY", -1, 1, 21, 1, Q("798.7613 mm")))
sketch1.addConstraint(Sketcher.Constraint("DistanceX", -1, 1, 30, 1, Q("2041.6292 mm")))
sketch1.addConstraint(Sketcher.Constraint("DistanceY", -1, 1, 38, 1, Q("1149.4874 mm")))
sketch1.addConstraint(Sketcher.Constraint("DistanceY", -1, 1, 41, 1, Q("1083.4946 mm")))
sketch1.addConstraint(Sketcher.Constraint("DistanceY", -1, 1, 46, 1, Q("1077.5665 mm")))
sketch1.addConstraint(Sketcher.Constraint("DistanceY", -1, 1, 53, 1, Q("963.0802 mm")))
pad1 = body.newObject("PartDesign::Pad", "Pad")
pad1.Profile = sketch1
pad1.Length = 18

doc.recompute()
